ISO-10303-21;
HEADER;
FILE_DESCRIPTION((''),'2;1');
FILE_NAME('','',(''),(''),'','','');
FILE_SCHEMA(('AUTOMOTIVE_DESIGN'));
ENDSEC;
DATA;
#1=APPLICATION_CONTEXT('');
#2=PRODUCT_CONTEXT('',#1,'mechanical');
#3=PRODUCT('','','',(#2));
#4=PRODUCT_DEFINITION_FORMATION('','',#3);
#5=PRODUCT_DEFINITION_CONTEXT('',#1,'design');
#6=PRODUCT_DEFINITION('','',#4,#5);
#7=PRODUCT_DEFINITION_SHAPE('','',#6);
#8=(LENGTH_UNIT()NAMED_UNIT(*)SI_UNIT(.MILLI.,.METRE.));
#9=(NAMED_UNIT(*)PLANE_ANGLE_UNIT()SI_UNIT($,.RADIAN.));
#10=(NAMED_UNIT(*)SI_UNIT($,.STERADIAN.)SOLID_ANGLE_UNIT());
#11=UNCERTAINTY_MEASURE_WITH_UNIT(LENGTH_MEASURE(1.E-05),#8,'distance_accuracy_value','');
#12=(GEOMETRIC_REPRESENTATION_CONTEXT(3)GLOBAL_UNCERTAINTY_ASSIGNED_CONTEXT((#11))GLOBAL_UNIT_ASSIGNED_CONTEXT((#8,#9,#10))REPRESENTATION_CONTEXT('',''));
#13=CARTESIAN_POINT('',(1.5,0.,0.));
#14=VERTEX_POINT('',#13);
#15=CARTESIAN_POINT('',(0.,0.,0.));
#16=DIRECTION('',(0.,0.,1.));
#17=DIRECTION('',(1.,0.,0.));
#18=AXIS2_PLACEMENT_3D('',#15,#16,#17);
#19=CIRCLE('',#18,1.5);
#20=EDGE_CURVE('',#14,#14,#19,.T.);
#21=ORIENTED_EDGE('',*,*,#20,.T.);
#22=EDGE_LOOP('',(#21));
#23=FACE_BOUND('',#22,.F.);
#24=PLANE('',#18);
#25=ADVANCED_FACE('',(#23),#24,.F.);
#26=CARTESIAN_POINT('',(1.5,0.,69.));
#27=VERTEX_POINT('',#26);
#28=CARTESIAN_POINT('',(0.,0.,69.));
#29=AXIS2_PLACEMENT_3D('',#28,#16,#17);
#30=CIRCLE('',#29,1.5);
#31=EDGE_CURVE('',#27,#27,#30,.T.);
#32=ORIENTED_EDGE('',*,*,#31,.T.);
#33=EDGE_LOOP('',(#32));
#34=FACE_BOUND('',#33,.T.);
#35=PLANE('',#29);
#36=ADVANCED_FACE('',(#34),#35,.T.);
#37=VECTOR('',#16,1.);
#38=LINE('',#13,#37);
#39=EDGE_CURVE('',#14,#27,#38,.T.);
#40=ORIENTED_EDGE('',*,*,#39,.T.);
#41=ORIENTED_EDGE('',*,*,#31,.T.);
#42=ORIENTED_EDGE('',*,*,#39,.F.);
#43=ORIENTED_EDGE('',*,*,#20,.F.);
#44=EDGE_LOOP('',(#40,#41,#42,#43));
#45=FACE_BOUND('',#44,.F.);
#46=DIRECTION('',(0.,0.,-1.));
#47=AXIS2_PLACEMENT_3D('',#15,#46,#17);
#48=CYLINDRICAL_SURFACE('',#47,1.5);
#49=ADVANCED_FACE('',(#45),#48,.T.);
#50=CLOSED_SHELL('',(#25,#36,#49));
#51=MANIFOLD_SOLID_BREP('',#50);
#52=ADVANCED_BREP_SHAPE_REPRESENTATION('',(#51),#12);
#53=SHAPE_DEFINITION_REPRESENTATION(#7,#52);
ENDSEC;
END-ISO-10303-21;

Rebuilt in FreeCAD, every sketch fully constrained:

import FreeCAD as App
import Part
import Sketcher

V = App.Vector

doc = App.newDocument("Part")
body = doc.addObject("PartDesign::Body", "Body")

# Sketch on XY plane
sketch1 = body.newObject("Sketcher::SketchObject", "Sketch")
sketch1.AttachmentSupport = (doc.getObject("XY_Plane"), [""])
sketch1.MapMode = "FlatFace"
sketch1.addGeometry(Part.Circle(V(0, 0, 0), V(0, 0, 1), 1.5), False)
sketch1.addConstraint([
    Sketcher.Constraint("Coincident", 0, 3, -1, 1),
    Sketcher.Constraint("Diameter", 0, 3.0),
])
pad1 = body.newObject("PartDesign::Pad", "Pad")
pad1.Profile = sketch1
pad1.Length = 69

doc.recompute()
